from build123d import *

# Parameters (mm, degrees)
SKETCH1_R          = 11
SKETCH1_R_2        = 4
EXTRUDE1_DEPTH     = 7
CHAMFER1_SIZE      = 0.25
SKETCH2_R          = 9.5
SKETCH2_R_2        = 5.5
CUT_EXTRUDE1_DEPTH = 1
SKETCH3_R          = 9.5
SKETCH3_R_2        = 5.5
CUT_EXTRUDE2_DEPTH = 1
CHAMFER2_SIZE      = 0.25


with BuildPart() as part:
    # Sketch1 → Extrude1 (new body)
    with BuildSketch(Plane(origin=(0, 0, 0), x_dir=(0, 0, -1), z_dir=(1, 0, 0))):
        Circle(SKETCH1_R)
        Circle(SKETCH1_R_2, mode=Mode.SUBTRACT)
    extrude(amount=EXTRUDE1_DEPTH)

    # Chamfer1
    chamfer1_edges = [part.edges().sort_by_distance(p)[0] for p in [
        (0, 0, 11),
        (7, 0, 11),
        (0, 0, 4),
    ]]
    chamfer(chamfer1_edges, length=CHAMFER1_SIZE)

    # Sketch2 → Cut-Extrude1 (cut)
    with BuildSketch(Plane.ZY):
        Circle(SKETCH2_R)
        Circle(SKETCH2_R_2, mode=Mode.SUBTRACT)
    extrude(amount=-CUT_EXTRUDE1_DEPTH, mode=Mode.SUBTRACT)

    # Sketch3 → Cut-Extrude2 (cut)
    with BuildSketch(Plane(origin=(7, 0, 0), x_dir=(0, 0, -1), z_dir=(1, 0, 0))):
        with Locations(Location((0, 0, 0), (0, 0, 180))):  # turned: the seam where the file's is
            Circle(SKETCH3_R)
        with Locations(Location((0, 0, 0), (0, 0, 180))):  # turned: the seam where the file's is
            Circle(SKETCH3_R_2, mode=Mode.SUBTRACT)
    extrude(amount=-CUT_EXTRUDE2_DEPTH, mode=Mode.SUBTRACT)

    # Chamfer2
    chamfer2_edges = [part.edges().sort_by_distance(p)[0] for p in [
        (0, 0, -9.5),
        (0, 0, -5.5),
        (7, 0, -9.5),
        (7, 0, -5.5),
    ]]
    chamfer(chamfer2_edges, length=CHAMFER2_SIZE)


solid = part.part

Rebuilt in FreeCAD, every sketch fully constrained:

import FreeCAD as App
import Part
import Sketcher
from FreeCAD import Vector
Q = App.Units.Quantity


def edges_at(feature, points):
    """Names of the edges that pass closest to the given points."""
    edges = feature.Shape.Edges
    near = lambda p: min(range(len(edges)), key=lambda i: edges[i].distToShape(Part.Vertex(*p))[0])
    return sorted({f"Edge{near(p) + 1}" for p in points})

doc = App.newDocument("Part")
body = doc.addObject("PartDesign::Body", "Body")

sketch1 = doc.addObject("Sketcher::SketchObject", "Sketch")
body.addObject(sketch1)
sketch1.AttachmentSupport = (doc.YZ_Plane, [""])
sketch1.MapMode = "FlatFace"
sketch1.addGeometry(Part.Circle(Vector(0, 0, 0), Vector(0, 0, 1), 11), False)
sketch1.addGeometry(Part.Circle(Vector(0, 0, 0), Vector(0, 0, 1), 4), False)
sketch1.addConstraint(Sketcher.Constraint("Coincident", 0, 3, -1, 1))
sketch1.addConstraint(Sketcher.Constraint("Coincident", 1, 3, -1, 1))
sketch1.addConstraint(Sketcher.Constraint("Diameter", 0, Q("22 mm")))
sketch1.addConstraint(Sketcher.Constraint("Diameter", 1, Q("8 mm")))
pad1 = doc.addObject("PartDesign::Pad", "Pad")
body.addObject(pad1)
pad1.Profile = sketch1
pad1.Length = 7
doc.recompute()

chamfer = doc.addObject("PartDesign::Chamfer", "Chamfer")
body.addObject(chamfer)
chamfer.Base = (pad1, edges_at(pad1, [(0, 0, 11), (7, 0, 11), (0, 0, 4)]))
chamfer.Size = 0.25

sketch2 = doc.addObject("Sketcher::SketchObject", "Sketch001")
body.addObject(sketch2)
sketch2.AttachmentSupport = (doc.YZ_Plane, [""])
sketch2.MapMode = "FlatFace"
sketch2.addGeometry(Part.Circle(Vector(0, 0, 0), Vector(0, 0, 1), 9.5), False)
sketch2.addGeometry(Part.Circle(Vector(0, 0, 0), Vector(0, 0, 1), 5.5), False)
sketch2.addConstraint(Sketcher.Constraint("Coincident", 0, 3, -1, 1))
sketch2.addConstraint(Sketcher.Constraint("Coincident", 1, 3, -1, 1))
sketch2.addConstraint(Sketcher.Constraint("Diameter", 0, Q("19 mm")))
sketch2.addConstraint(Sketcher.Constraint("Diameter", 1, Q("11 mm")))
pocket1 = doc.addObject("PartDesign::Pocket", "Pocket")
body.addObject(pocket1)
pocket1.Profile = sketch2
pocket1.Length = 1
pocket1.Reversed = True

sketch3 = doc.addObject("Sketcher::SketchObject", "Sketch002")
body.addObject(sketch3)
sketch3.AttachmentSupport = (doc.YZ_Plane, [""])
sketch3.MapMode = "FlatFace"
sketch3.AttachmentOffset = App.Placement(Vector(0, 0, 7), App.Rotation())
sketch3.addGeometry(Part.Circle(Vector(0, 0, 0), Vector(0, 0, 1), 9.5), False)
sketch3.addGeometry(Part.Circle(Vector(0, 0, 0), Vector(0, 0, 1), 5.5), False)
sketch3.addConstraint(Sketcher.Constraint("Coincident", 0, 3, -1, 1))
sketch3.addConstraint(Sketcher.Constraint("Coincident", 1, 3, -1, 1))
sketch3.addConstraint(Sketcher.Constraint("Diameter", 0, Q("19 mm")))
sketch3.addConstraint(Sketcher.Constraint("Diameter", 1, Q("11 mm")))
pocket2 = doc.addObject("PartDesign::Pocket", "Pocket001")
body.addObject(pocket2)
pocket2.Profile = sketch3
pocket2.Length = 1
doc.recompute()

chamfer2 = doc.addObject("PartDesign::Chamfer", "Chamfer001")
body.addObject(chamfer2)
chamfer2.Base = (pocket2, edges_at(pocket2, [
    (0, 0, -9.5),
    (0, 0, -5.5),
    (7, 0, -9.5),
    (7, 0, -5.5),
]))
chamfer2.Size = 0.25

doc.recompute()
